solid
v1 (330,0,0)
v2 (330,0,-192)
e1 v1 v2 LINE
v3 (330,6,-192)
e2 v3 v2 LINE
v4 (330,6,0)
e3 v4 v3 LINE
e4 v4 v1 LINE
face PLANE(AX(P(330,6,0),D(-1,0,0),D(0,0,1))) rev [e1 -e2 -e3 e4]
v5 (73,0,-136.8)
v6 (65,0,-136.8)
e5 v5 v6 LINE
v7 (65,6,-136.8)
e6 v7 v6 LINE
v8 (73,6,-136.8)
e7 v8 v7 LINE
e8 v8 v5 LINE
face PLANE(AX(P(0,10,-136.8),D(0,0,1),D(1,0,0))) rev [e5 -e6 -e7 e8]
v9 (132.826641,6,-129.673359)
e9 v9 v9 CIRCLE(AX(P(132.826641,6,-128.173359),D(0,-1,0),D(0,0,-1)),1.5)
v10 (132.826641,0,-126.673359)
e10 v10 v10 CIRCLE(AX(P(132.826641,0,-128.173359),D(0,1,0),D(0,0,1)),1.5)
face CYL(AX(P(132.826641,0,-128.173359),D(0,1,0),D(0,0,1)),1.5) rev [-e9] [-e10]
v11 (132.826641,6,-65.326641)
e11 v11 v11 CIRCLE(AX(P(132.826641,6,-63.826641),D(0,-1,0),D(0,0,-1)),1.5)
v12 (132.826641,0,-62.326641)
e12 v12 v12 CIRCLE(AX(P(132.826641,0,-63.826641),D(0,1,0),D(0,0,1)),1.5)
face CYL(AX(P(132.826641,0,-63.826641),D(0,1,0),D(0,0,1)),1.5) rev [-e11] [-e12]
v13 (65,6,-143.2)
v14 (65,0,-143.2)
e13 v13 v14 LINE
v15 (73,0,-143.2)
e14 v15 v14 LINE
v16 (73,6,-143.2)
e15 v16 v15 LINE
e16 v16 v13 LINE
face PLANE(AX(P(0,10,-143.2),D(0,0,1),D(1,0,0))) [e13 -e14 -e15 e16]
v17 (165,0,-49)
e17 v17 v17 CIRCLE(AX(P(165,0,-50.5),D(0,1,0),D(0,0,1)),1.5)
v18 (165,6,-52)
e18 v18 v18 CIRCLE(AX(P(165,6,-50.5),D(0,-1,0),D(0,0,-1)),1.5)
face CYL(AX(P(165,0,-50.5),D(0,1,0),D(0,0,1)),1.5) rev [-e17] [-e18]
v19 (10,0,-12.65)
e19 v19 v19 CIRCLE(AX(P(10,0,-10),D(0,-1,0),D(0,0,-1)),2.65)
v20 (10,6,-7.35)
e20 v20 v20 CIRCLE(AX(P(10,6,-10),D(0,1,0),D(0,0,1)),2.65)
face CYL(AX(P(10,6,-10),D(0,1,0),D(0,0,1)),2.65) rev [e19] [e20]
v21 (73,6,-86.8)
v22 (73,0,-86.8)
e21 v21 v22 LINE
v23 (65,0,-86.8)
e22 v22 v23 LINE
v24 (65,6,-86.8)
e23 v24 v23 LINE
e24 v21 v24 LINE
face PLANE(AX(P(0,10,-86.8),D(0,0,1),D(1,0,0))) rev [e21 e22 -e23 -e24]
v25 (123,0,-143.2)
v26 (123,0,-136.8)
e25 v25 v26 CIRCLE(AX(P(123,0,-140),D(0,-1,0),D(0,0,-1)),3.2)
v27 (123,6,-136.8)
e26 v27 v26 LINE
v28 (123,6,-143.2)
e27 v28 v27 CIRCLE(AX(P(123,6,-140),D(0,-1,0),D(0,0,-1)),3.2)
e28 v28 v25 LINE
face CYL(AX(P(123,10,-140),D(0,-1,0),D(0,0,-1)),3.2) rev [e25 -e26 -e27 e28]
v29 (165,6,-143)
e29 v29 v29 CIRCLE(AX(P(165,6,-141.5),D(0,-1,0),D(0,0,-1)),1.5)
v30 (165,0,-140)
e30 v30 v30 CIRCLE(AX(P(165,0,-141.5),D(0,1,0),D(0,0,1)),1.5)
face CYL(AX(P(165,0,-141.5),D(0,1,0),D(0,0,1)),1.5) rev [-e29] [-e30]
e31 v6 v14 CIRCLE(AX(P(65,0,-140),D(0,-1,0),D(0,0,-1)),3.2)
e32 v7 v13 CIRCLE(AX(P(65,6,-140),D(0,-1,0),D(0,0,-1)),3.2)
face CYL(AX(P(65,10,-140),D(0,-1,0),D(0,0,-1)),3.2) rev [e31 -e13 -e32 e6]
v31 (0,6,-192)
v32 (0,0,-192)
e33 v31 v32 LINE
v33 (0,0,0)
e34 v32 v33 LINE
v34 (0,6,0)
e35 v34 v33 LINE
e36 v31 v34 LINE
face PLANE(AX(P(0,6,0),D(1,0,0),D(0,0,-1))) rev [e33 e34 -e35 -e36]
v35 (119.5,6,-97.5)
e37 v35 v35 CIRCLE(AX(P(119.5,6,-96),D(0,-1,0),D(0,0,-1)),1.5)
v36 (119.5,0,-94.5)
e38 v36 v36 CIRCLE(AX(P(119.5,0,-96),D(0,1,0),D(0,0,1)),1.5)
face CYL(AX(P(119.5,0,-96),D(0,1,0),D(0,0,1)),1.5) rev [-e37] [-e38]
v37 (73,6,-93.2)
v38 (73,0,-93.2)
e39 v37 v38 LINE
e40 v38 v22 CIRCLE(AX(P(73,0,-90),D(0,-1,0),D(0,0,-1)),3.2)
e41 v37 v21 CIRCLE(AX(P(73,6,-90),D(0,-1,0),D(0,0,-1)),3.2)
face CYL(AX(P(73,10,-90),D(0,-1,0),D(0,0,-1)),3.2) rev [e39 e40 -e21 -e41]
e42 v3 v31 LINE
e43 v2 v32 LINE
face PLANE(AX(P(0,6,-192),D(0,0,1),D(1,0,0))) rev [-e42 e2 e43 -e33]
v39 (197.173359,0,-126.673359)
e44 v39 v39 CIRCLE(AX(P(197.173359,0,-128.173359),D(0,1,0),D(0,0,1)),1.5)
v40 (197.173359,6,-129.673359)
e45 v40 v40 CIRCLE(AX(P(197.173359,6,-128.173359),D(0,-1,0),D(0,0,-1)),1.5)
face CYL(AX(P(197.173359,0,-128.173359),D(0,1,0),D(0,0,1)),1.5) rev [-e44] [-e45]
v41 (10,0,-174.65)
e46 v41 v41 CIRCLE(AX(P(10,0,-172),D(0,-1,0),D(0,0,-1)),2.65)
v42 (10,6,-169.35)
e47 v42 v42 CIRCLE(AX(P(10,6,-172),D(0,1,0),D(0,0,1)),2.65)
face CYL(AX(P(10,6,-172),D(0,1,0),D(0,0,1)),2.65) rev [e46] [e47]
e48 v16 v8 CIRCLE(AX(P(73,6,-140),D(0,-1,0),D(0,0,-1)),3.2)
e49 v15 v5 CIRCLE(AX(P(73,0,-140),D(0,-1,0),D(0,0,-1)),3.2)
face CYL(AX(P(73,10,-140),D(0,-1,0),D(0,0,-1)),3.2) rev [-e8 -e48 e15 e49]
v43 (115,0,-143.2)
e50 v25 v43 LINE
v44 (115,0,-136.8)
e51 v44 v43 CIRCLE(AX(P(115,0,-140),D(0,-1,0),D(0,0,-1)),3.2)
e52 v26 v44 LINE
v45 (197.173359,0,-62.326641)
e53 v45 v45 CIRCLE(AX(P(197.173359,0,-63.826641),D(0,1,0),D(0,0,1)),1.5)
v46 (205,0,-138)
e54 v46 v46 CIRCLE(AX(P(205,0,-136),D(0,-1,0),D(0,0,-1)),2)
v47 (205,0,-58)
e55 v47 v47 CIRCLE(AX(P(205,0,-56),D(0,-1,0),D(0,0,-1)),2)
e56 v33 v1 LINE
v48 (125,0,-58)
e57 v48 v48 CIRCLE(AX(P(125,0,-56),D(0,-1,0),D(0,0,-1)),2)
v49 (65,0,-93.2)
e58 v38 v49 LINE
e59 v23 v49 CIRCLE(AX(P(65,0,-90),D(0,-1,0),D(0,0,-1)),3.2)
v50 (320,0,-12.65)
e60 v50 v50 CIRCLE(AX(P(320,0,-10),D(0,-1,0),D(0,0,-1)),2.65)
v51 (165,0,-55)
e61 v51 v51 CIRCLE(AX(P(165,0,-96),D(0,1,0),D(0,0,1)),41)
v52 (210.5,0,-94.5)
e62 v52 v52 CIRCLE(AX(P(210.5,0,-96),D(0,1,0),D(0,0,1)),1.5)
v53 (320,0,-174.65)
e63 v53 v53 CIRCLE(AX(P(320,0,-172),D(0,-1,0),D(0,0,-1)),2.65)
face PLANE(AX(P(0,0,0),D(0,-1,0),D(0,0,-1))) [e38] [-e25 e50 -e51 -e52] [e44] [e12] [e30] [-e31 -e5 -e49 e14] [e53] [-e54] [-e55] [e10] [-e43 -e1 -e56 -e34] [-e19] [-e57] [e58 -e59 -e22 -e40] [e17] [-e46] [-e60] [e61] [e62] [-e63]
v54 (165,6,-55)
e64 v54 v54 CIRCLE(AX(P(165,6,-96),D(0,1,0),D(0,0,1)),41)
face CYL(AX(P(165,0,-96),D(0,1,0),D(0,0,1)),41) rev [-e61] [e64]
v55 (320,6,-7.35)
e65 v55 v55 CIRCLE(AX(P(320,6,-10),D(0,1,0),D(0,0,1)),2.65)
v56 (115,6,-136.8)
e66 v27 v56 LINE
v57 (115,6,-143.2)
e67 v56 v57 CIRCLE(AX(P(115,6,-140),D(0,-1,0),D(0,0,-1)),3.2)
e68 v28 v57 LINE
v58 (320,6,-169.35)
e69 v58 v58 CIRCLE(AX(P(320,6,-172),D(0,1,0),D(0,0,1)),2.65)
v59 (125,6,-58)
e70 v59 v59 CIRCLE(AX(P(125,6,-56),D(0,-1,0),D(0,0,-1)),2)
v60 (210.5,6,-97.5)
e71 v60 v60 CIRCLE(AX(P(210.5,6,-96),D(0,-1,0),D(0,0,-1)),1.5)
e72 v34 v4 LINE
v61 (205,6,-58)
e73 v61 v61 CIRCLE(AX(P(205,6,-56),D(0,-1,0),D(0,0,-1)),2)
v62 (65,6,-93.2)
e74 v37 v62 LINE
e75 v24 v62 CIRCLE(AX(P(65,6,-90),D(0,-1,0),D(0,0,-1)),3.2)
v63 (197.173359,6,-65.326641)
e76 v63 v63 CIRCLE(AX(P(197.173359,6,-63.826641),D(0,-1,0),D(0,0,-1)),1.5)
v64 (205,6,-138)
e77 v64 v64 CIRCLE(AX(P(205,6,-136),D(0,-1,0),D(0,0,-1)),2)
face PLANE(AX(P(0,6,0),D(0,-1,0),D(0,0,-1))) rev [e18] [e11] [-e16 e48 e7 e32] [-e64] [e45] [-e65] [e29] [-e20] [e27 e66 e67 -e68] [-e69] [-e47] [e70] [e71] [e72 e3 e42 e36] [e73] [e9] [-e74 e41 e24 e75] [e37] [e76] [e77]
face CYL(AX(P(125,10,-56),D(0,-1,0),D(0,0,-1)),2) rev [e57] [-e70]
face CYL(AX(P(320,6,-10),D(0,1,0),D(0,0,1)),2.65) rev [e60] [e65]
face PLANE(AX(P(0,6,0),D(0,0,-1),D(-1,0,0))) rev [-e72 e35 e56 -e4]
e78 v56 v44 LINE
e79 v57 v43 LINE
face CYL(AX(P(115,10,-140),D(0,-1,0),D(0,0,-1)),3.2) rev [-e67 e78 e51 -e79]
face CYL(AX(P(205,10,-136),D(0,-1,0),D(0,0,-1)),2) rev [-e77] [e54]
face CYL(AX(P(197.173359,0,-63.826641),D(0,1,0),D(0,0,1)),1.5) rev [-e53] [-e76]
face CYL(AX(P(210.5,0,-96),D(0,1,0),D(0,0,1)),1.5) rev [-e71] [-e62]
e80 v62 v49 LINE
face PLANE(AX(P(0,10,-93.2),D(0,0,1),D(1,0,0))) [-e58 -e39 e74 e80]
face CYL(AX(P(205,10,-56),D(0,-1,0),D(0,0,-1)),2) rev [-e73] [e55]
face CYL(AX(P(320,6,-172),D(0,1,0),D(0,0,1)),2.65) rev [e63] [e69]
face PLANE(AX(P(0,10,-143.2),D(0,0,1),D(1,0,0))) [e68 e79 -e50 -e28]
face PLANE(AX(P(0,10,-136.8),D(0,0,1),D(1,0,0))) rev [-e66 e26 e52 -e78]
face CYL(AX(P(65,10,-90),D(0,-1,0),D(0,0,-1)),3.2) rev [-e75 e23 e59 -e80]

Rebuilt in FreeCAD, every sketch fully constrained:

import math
import FreeCAD as App
import Part
import Sketcher
Q = App.Units.Quantity

doc = App.newDocument("Part")
body = doc.addObject("PartDesign::Body", "Body")

# Sketch on XZ plane
sketch1 = doc.addObject("Sketcher::SketchObject", "Sketch")
body.addObject(sketch1)
sketch1.AttachmentSupport = (doc.XZ_Plane, [""])
sketch1.MapMode = "FlatFace"
sketch1.addGeometry([
    Part.LineSegment(App.Vector(0, -192, 0), App.Vector(0, 0, 0)),
    Part.LineSegment(App.Vector(0, 0, 0), App.Vector(330, 0, 0)),
    Part.LineSegment(App.Vector(330, 0, 0), App.Vector(330, -192, 0)),
    Part.LineSegment(App.Vector(330, -192, 0), App.Vector(0, -192, 0)),
], False)
sketch1.addConstraint([
    Sketcher.Constraint("Coincident", 0, 2, 1, 1),
    Sketcher.Constraint("Coincident", 1, 2, 2, 1),
    Sketcher.Constraint("Coincident", 2, 2, 3, 1),
    Sketcher.Constraint("Coincident", 3, 2, 0, 1),
    Sketcher.Constraint("Vertical", 0),
    Sketcher.Constraint("Horizontal", 1),
    Sketcher.Constraint("Vertical", 2),
    Sketcher.Constraint("Horizontal", 3),
    Sketcher.Constraint("Coincident", 0, 2, -1, 1),
    Sketcher.Constraint("DistanceX", 1, 1, 1, 2, Q("330 mm")),
    Sketcher.Constraint("DistanceY", 0, 1, 0, 2, Q("192 mm")),
])
pad1 = doc.addObject("PartDesign::Pad", "Pad")
body.addObject(pad1)
pad1.Profile = sketch1
pad1.Length = 6
pad1.Reversed = True

# Sketch on XZ plane
sketch2 = doc.addObject("Sketcher::SketchObject", "Sketch001")
body.addObject(sketch2)
sketch2.AttachmentSupport = (doc.XZ_Plane, [""])
sketch2.MapMode = "FlatFace"
sketch2.AttachmentOffset = App.Placement(App.Vector(0, 0, -6), App.Rotation())
sketch2.addGeometry([
    Part.Circle(App.Vector(165, -141.5, 0), App.Vector(0, 0, 1), 1.5),  # 0
    Part.Circle(App.Vector(197.173359, -128.173359, 0), App.Vector(0, 0, 1), 1.5),  # 1
    Part.Circle(App.Vector(210.5, -96, 0), App.Vector(0, 0, 1), 1.5),  # 2
    Part.Circle(App.Vector(165, -50.5, 0), App.Vector(0, 0, 1), 1.5),  # 3
    Part.Circle(App.Vector(132.826641, -63.826641, 0), App.Vector(0, 0, 1), 1.5),  # 4
    Part.Circle(App.Vector(119.5, -96, 0), App.Vector(0, 0, 1), 1.5),  # 5
    Part.Circle(App.Vector(132.826641, -128.173359, 0), App.Vector(0, 0, 1), 1.5),  # 6
    Part.Circle(App.Vector(197.173359, -63.826641, 0), App.Vector(0, 0, 1), 1.5),  # 7
], False)
sketch2.addConstraint([
    Sketcher.Constraint("Equal", 0, 1),
    Sketcher.Constraint("Equal", 1, 2),
    Sketcher.Constraint("Equal", 2, 3),
    Sketcher.Constraint("Equal", 3, 4),
    Sketcher.Constraint("Equal", 4, 5),
    Sketcher.Constraint("Equal", 5, 6),
    Sketcher.Constraint("Equal", 6, 7),
    Sketcher.Constraint("Horizontal", 2, 3, 5, 3),
    Sketcher.Constraint("Horizontal", 1, 3, 6, 3),
    Sketcher.Constraint("Horizontal", 4, 3, 7, 3),
    Sketcher.Constraint("Vertical", 0, 3, 3, 3),
    Sketcher.Constraint("Vertical", 4, 3, 6, 3),
    Sketcher.Constraint("Vertical", 1, 3, 7, 3),
    Sketcher.Constraint("Diameter", 0, Q("3 mm")),
    Sketcher.Constraint("DistanceX", -1, 1, 0, 3, Q("165 mm")),
    Sketcher.Constraint("DistanceY", 2, 3, -1, 1, Q("96 mm")),
    Sketcher.Constraint("DistanceY", 0, 3, 3, 3, Q("91 mm")),
    Sketcher.Constraint("DistanceX", 5, 3, 2, 3, Q("91 mm")),
    Sketcher.Constraint("DistanceY", 0, 3, -1, 1, Q("141.5 mm")),
    Sketcher.Constraint("DistanceX", -1, 1, 2, 3, Q("210.5 mm")),
    Sketcher.Constraint("DistanceX", -1, 1, 1, 3, Q("197.173359 mm")),
    Sketcher.Constraint("DistanceY", 1, 3, -1, 1, Q("128.173359 mm")),
    Sketcher.Constraint("DistanceX", -1, 1, 4, 3, Q("132.826641 mm")),
    Sketcher.Constraint("DistanceY", 4, 3, -1, 1, Q("63.826641 mm")),
])
pocket1 = doc.addObject("PartDesign::Pocket", "Pocket")
body.addObject(pocket1)
pocket1.Profile = sketch2
pocket1.Type = "ThroughAll"
pocket1.Midplane = True

# Sketch on XZ plane
sketch3 = doc.addObject("Sketcher::SketchObject", "Sketch002")
body.addObject(sketch3)
sketch3.AttachmentSupport = (doc.XZ_Plane, [""])
sketch3.MapMode = "FlatFace"
sketch3.AttachmentOffset = App.Placement(App.Vector(0, 0, -6), App.Rotation())
sketch3.addGeometry(Part.Circle(App.Vector(165, -96, 0), App.Vector(0, 0, 1), 41), False)
sketch3.addConstraint([
    Sketcher.Constraint("Diameter", 0, Q("82 mm")),
    Sketcher.Constraint("DistanceX", -1, 1, 0, 3, Q("165 mm")),
    Sketcher.Constraint("DistanceY", 0, 3, -1, 1, Q("96 mm")),
])
pocket2 = doc.addObject("PartDesign::Pocket", "Pocket001")
body.addObject(pocket2)
pocket2.Profile = sketch3
pocket2.Type = "ThroughAll"
pocket2.Reversed = True

# Sketch on XZ plane
sketch4 = doc.addObject("Sketcher::SketchObject", "Sketch003")
body.addObject(sketch4)
sketch4.AttachmentSupport = (doc.XZ_Plane, [""])
sketch4.MapMode = "FlatFace"
sketch4.addGeometry([
    Part.LineSegment(App.Vector(123, -136.8, 0), App.Vector(115, -136.8, 0)),  # 0
    Part.ArcOfCircle(Part.Circle(App.Vector(115, -140, 0), App.Vector(0, 0, 1), 3.2), math.radians(90), math.radians(270)),  # 1
    Part.LineSegment(App.Vector(115, -143.2, 0), App.Vector(123, -143.2, 0)),  # 2
    Part.ArcOfCircle(Part.Circle(App.Vector(123, -140, 0), App.Vector(0, 0, 1), 3.2), math.radians(-90), math.radians(90)),  # 3
    Part.LineSegment(App.Vector(73, -136.8, 0), App.Vector(65, -136.8, 0)),  # 4
    Part.ArcOfCircle(Part.Circle(App.Vector(65, -140, 0), App.Vector(0, 0, 1), 3.2), math.radians(90), math.radians(270)),  # 5
    Part.LineSegment(App.Vector(65, -143.2, 0), App.Vector(73, -143.2, 0)),  # 6
    Part.ArcOfCircle(Part.Circle(App.Vector(73, -140, 0), App.Vector(0, 0, 1), 3.2), math.radians(-90), math.radians(90)),  # 7
    Part.LineSegment(App.Vector(73, -86.8, 0), App.Vector(65, -86.8, 0)),  # 8
    Part.ArcOfCircle(Part.Circle(App.Vector(65, -90, 0), App.Vector(0, 0, 1), 3.2), math.radians(90), math.radians(270)),  # 9
    Part.LineSegment(App.Vector(65, -93.2, 0), App.Vector(73, -93.2, 0)),  # 10
    Part.ArcOfCircle(Part.Circle(App.Vector(73, -90, 0), App.Vector(0, 0, 1), 3.2), math.radians(-90), math.radians(90)),  # 11
], False)
sketch4.addConstraint([
    Sketcher.Constraint("Tangent", 0, 2, 1, 1),
    Sketcher.Constraint("Tangent", 1, 2, 2, 1),
    Sketcher.Constraint("Tangent", 2, 2, 3, 1),
    Sketcher.Constraint("Tangent", 3, 2, 0, 1),
    Sketcher.Constraint("Tangent", 4, 2, 5, 1),
    Sketcher.Constraint("Tangent", 5, 2, 6, 1),
    Sketcher.Constraint("Tangent", 6, 2, 7, 1),
    Sketcher.Constraint("Tangent", 7, 2, 4, 1),
    Sketcher.Constraint("Tangent", 8, 2, 9, 1),
    Sketcher.Constraint("Tangent", 9, 2, 10, 1),
    Sketcher.Constraint("Tangent", 10, 2, 11, 1),
    Sketcher.Constraint("Tangent", 11, 2, 8, 1),
    Sketcher.Constraint("Horizontal", 0),
    Sketcher.Constraint("Horizontal", 2),
    Sketcher.Constraint("Horizontal", 4),
    Sketcher.Constraint("Horizontal", 6),
    Sketcher.Constraint("Horizontal", 8),
    Sketcher.Constraint("Horizontal", 10),
    Sketcher.Constraint("Equal", 3, 5),
    Sketcher.Constraint("Equal", 7, 9),
    Sketcher.Constraint("Horizontal", 3, 3, 5, 3),
    Sketcher.Constraint("Vertical", 5, 3, 9, 3),
    Sketcher.Constraint("Vertical", 7, 3, 11, 3),
    Sketcher.Constraint("Equal", 2, 4),
    Sketcher.Constraint("Radius", 1, Q("3.2 mm")),
    Sketcher.Constraint("DistanceX", 0, 2, 0, 1, Q("8 mm")),
    Sketcher.Constraint("DistanceX", -1, 1, 1, 3, Q("115 mm")),
    Sketcher.Constraint("DistanceY", 1, 3, -1, 1, Q("140 mm")),
    Sketcher.Constraint("DistanceX", -1, 1, 5, 3, Q("65 mm")),
    Sketcher.Constraint("DistanceY", 9, 3, -1, 1, Q("90 mm")),
])
pocket3 = doc.addObject("PartDesign::Pocket", "Pocket002")
body.addObject(pocket3)
pocket3.Profile = sketch4
pocket3.Length = 10

# Sketch on XZ plane
sketch5 = doc.addObject("Sketcher::SketchObject", "Sketch004")
body.addObject(sketch5)
sketch5.AttachmentSupport = (doc.XZ_Plane, [""])
sketch5.MapMode = "FlatFace"
sketch5.addGeometry([
    Part.Circle(App.Vector(125, -56, 0), App.Vector(0, 0, 1), 2),
    Part.Circle(App.Vector(205, -56, 0), App.Vector(0, 0, 1), 2),
    Part.Circle(App.Vector(205, -136, 0), App.Vector(0, 0, 1), 2),
], False)
sketch5.addConstraint([
    Sketcher.Constraint("Equal", 0, 1),
    Sketcher.Constraint("Equal", 1, 2),
    Sketcher.Constraint("Horizontal", 0, 3, 1, 3),
    Sketcher.Constraint("Vertical", 1, 3, 2, 3),
    Sketcher.Constraint("Diameter", 0, Q("4 mm")),
    Sketcher.Constraint("DistanceX", -1, 1, 0, 3, Q("125 mm")),
    Sketcher.Constraint("DistanceY", 0, 3, -1, 1, Q("56 mm")),
    Sketcher.Constraint("DistanceX", -1, 1, 1, 3, Q("205 mm")),
    Sketcher.Constraint("DistanceY", 2, 3, -1, 1, Q("136 mm")),
])
pocket4 = doc.addObject("PartDesign::Pocket", "Pocket003")
body.addObject(pocket4)
pocket4.Profile = sketch5
pocket4.Length = 10

# Sketch on XZ plane
sketch6 = doc.addObject("Sketcher::SketchObject", "Sketch005")
body.addObject(sketch6)
sketch6.AttachmentSupport = (doc.XZ_Plane, [""])
sketch6.MapMode = "FlatFace"
sketch6.AttachmentOffset = App.Placement(App.Vector(0, 0, -6), App.Rotation())
sketch6.addGeometry([
    Part.Circle(App.Vector(10, -172, 0), App.Vector(0, 0, 1), 2.65),
    Part.Circle(App.Vector(10, -10, 0), App.Vector(0, 0, 1), 2.65),
    Part.Circle(App.Vector(320, -10, 0), App.Vector(0, 0, 1), 2.65),
    Part.Circle(App.Vector(320, -172, 0), App.Vector(0, 0, 1), 2.65),
], False)
sketch6.addConstraint([
    Sketcher.Constraint("Equal", 0, 1),
    Sketcher.Constraint("Equal", 1, 2),
    Sketcher.Constraint("Equal", 2, 3),
    Sketcher.Constraint("Horizontal", 1, 3, 2, 3),
    Sketcher.Constraint("Horizontal", 0, 3, 3, 3),
    Sketcher.Constraint("Vertical", 0, 3, 1, 3),
    Sketcher.Constraint("Vertical", 2, 3, 3, 3),
    Sketcher.Constraint("Diameter", 0, Q("5.3 mm")),
    Sketcher.Constraint("DistanceX", -1, 1, 0, 3, Q("10 mm")),
    Sketcher.Constraint("DistanceY", 0, 3, -1, 1, Q("172 mm")),
    Sketcher.Constraint("DistanceY", 1, 3, -1, 1, Q("10 mm")),
    Sketcher.Constraint("DistanceX", -1, 1, 2, 3, Q("320 mm")),
])
doc.recompute()
hole = doc.addObject("PartDesign::Hole", "Hole")
body.addObject(hole)
hole.Profile = sketch6
hole.ThreadType = "None"
hole.Diameter = 5.3
hole.DepthType = "Dimension"
hole.Depth = 11.94
hole.DrillPoint = "Angled"
hole.DrillPointAngle = 118
hole.Reversed = True

doc.recompute()
